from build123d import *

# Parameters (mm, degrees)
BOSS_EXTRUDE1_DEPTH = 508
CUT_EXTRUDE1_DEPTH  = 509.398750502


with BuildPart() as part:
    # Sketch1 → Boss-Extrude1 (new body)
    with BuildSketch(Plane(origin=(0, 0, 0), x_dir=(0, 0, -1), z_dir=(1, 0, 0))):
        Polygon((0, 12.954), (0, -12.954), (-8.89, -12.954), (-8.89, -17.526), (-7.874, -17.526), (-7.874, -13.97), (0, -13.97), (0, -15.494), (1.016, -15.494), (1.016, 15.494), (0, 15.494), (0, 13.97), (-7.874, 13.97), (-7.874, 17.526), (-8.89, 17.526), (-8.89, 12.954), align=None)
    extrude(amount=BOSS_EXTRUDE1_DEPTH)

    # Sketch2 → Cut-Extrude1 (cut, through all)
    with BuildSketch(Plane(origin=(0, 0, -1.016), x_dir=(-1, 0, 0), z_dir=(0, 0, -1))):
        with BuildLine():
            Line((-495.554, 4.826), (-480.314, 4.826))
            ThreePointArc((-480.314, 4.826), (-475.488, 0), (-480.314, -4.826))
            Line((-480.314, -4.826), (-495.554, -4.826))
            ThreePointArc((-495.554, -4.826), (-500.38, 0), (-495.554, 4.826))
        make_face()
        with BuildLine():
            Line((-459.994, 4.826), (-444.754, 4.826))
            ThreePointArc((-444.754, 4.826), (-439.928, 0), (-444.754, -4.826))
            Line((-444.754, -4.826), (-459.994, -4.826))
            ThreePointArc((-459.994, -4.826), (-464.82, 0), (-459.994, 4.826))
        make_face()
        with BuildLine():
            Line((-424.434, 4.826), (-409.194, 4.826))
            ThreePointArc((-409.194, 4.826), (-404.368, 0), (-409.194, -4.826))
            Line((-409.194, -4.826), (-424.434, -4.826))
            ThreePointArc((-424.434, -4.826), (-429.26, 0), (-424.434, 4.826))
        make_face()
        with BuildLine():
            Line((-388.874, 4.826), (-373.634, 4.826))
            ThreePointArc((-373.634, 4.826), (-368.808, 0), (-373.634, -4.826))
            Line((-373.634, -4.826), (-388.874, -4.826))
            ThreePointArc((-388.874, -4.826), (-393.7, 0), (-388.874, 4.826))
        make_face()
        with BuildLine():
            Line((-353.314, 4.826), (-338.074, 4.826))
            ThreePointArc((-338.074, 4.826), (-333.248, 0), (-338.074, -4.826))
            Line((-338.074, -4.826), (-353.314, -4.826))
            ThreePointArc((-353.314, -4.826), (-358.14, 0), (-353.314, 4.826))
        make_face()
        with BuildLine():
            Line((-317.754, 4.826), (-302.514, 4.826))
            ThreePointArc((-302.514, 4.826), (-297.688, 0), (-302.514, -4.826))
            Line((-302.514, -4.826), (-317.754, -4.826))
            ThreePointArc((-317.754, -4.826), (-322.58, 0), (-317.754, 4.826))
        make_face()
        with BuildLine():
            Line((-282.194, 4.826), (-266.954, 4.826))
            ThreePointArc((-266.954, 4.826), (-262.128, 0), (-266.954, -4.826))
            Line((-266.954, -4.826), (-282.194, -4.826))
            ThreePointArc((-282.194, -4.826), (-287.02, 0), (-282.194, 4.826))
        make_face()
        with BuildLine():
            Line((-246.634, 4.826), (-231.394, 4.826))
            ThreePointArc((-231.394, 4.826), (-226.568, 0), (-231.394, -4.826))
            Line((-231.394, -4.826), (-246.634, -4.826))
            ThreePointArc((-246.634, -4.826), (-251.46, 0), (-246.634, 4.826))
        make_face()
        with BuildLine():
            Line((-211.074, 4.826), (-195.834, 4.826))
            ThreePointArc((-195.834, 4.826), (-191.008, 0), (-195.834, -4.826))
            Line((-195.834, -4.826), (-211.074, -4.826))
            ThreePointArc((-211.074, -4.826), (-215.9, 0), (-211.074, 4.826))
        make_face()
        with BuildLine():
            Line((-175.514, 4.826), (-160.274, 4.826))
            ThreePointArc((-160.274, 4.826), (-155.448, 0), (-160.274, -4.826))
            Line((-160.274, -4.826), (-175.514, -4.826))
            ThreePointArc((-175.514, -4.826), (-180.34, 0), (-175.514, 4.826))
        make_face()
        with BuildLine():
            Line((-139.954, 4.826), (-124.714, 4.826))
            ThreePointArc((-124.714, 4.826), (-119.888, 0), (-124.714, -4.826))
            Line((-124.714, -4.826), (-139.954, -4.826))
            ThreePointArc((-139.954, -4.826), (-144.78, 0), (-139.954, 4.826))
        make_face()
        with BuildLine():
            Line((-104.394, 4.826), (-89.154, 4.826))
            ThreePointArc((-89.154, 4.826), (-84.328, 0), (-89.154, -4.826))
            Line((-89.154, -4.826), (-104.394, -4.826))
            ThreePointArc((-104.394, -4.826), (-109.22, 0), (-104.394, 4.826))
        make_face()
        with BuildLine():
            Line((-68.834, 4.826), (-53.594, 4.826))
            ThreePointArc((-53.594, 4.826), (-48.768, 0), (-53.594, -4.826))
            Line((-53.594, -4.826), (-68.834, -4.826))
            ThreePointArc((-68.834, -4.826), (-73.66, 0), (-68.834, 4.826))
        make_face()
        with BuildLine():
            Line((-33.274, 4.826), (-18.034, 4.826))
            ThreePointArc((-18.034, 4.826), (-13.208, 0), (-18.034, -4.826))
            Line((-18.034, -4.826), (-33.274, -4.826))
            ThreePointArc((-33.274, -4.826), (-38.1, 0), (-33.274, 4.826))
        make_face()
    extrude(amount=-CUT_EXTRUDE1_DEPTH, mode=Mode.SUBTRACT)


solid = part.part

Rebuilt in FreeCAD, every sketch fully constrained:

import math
import FreeCAD as App
import Part
import Sketcher

V = App.Vector
Q = App.Units.Quantity

doc = App.newDocument("Part")
body = doc.addObject("PartDesign::Body", "Body")

sketch1 = doc.addObject("Sketcher::SketchObject", "Sketch")
body.addObject(sketch1)
sketch1.AttachmentSupport = (doc.YZ_Plane, [""])
sketch1.MapMode = "FlatFace"
sketch1.addGeometry([
    Part.LineSegment(V(13, 0, 0), V(-13, 0, 0)),
    Part.LineSegment(V(-13, 0, 0), V(-13, 8.9, 0)),
    Part.LineSegment(V(-13, 8.9, 0), V(-17.5, 8.9, 0)),
    Part.LineSegment(V(-17.5, 8.9, 0), V(-17.5, 7.9, 0)),
    Part.LineSegment(V(-17.5, 7.9, 0), V(-14, 7.9, 0)),
    Part.LineSegment(V(-14, 7.9, 0), V(-14, 0, 0)),
    Part.LineSegment(V(-14, 0, 0), V(-15.5, 0, 0)),
    Part.LineSegment(V(-15.5, 0, 0), V(-15.5, -1, 0)),
    Part.LineSegment(V(-15.5, -1, 0), V(15.5, -1, 0)),
    Part.LineSegment(V(15.5, -1, 0), V(15.5, 0, 0)),
    Part.LineSegment(V(15.5, 0, 0), V(14, 0, 0)),
    Part.LineSegment(V(14, 0, 0), V(14, 7.9, 0)),
    Part.LineSegment(V(14, 7.9, 0), V(17.5, 7.9, 0)),
    Part.LineSegment(V(17.5, 7.9, 0), V(17.5, 8.9, 0)),
    Part.LineSegment(V(17.5, 8.9, 0), V(13, 8.9, 0)),
    Part.LineSegment(V(13, 8.9, 0), V(13, 0, 0)),
], False)
sketch1.addConstraint([
    Sketcher.Constraint("Coincident", 0, 2, 1, 1),
    Sketcher.Constraint("Coincident", 1, 2, 2, 1),
    Sketcher.Constraint("Coincident", 2, 2, 3, 1),
    Sketcher.Constraint("Coincident", 3, 2, 4, 1),
    Sketcher.Constraint("Coincident", 4, 2, 5, 1),
    Sketcher.Constraint("Coincident", 5, 2, 6, 1),
    Sketcher.Constraint("Coincident", 6, 2, 7, 1),
    Sketcher.Constraint("Coincident", 7, 2, 8, 1),
    Sketcher.Constraint("Coincident", 8, 2, 9, 1),
    Sketcher.Constraint("Coincident", 9, 2, 10, 1),
    Sketcher.Constraint("Coincident", 10, 2, 11, 1),
    Sketcher.Constraint("Coincident", 11, 2, 12, 1),
    Sketcher.Constraint("Coincident", 12, 2, 13, 1),
    Sketcher.Constraint("Coincident", 13, 2, 14, 1),
    Sketcher.Constraint("Coincident", 14, 2, 15, 1),
    Sketcher.Constraint("Coincident", 15, 2, 0, 1),
    Sketcher.Constraint("Horizontal", 0),
    Sketcher.Constraint("Vertical", 1),
    Sketcher.Constraint("Horizontal", 2),
    Sketcher.Constraint("Vertical", 3),
    Sketcher.Constraint("Horizontal", 4),
    Sketcher.Constraint("Vertical", 5),
    Sketcher.Constraint("Horizontal", 6),
    Sketcher.Constraint("Vertical", 7),
    Sketcher.Constraint("Horizontal", 8),
    Sketcher.Constraint("Vertical", 9),
    Sketcher.Constraint("Horizontal", 10),
    Sketcher.Constraint("Vertical", 11),
    Sketcher.Constraint("Horizontal", 12),
    Sketcher.Constraint("Vertical", 13),
    Sketcher.Constraint("Horizontal", 14),
    Sketcher.Constraint("Vertical", 15),
    Sketcher.Constraint("Symmetric", 6, 2, 9, 2, -1, 1),
    Sketcher.Constraint("Symmetric", 0, 2, 15, 2, -1, 1),
    Sketcher.Constraint("Symmetric", 5, 2, 10, 2, -2),
    Sketcher.Constraint("Symmetric", 3, 2, 12, 2, -2),
    Sketcher.Constraint("Horizontal", 2, 2, 13, 2),
    Sketcher.Constraint("Equal", 3, 7),
    Sketcher.Constraint("DistanceX", 0, 2, 0, 1, Q("1.02 in")),
    Sketcher.Constraint("DistanceX", 2, 2, 2, 1, Q("0.18 in")),
    Sketcher.Constraint("DistanceX", 4, 1, 4, 2, Q("0.14 in")),
    Sketcher.Constraint("DistanceX", 6, 2, 6, 1, Q("0.06 in")),
    Sketcher.Constraint("DistanceY", 1, 1, 1, 2, Q("0.35 in")),
    Sketcher.Constraint("DistanceY", 3, 2, 3, 1, Q("0.04 in")),
])
pad1 = doc.addObject("PartDesign::Pad", "Pad")
body.addObject(pad1)
pad1.Profile = sketch1
pad1.Length = Q("20 in")

sketch2 = doc.addObject("Sketcher::SketchObject", "Sketch001")
body.addObject(sketch2)
sketch2.AttachmentSupport = (doc.XY_Plane, [""])
sketch2.MapMode = "FlatFace"
sketch2.AttachmentOffset = App.Placement(V(0, 0, -0.04 * 25.4), App.Rotation())
sketch2.addGeometry([
    Part.LineSegment(V(480.3, 4.8, 0), V(495.6, 4.8, 0)),
    Part.ArcOfCircle(Part.Circle(V(495.6, 0, 0), V(0, 0, 1), 4.8), math.radians(-90), math.radians(90)),
    Part.LineSegment(V(495.6, -4.8, 0), V(480.3, -4.8, 0)),
    Part.ArcOfCircle(Part.Circle(V(480.3, 0, 0), V(0, 0, 1), 4.8), math.radians(90), math.radians(270)),
    Part.LineSegment(V(444.8, 4.8, 0), V(460, 4.8, 0)),
    Part.ArcOfCircle(Part.Circle(V(460, 0, 0), V(0, 0, 1), 4.8), math.radians(-90), math.radians(90)),
    Part.LineSegment(V(460, -4.8, 0), V(444.8, -4.8, 0)),
    Part.ArcOfCircle(Part.Circle(V(444.8, 0, 0), V(0, 0, 1), 4.8), math.radians(90), math.radians(270)),
    Part.LineSegment(V(409.2, 4.8, 0), V(424.4, 4.8, 0)),
    Part.ArcOfCircle(Part.Circle(V(424.4, 0, 0), V(0, 0, 1), 4.8), math.radians(-90), math.radians(90)),
    Part.LineSegment(V(424.4, -4.8, 0), V(409.2, -4.8, 0)),
    Part.ArcOfCircle(Part.Circle(V(409.2, 0, 0), V(0, 0, 1), 4.8), math.radians(90), math.radians(270)),
    Part.LineSegment(V(373.6, 4.8, 0), V(388.9, 4.8, 0)),
    Part.ArcOfCircle(Part.Circle(V(388.9, 0, 0), V(0, 0, 1), 4.8), math.radians(-90), math.radians(90)),
    Part.LineSegment(V(388.9, -4.8, 0), V(373.6, -4.8, 0)),
    Part.ArcOfCircle(Part.Circle(V(373.6, 0, 0), V(0, 0, 1), 4.8), math.radians(90), math.radians(270)),
    Part.LineSegment(V(338.1, 4.8, 0), V(353.3, 4.8, 0)),
    Part.ArcOfCircle(Part.Circle(V(353.3, 0, 0), V(0, 0, 1), 4.8), math.radians(-90), math.radians(90)),
    Part.LineSegment(V(353.3, -4.8, 0), V(338.1, -4.8, 0)),
    Part.ArcOfCircle(Part.Circle(V(338.1, 0, 0), V(0, 0, 1), 4.8), math.radians(90), math.radians(270)),
    Part.LineSegment(V(302.5, 4.8, 0), V(317.8, 4.8, 0)),
    Part.ArcOfCircle(Part.Circle(V(317.8, 0, 0), V(0, 0, 1), 4.8), math.radians(-90), math.radians(90)),
    Part.LineSegment(V(317.8, -4.8, 0), V(302.5, -4.8, 0)),
    Part.ArcOfCircle(Part.Circle(V(302.5, 0, 0), V(0, 0, 1), 4.8), math.radians(90), math.radians(270)),
    Part.LineSegment(V(267, 4.8, 0), V(282.2, 4.8, 0)),
    Part.ArcOfCircle(Part.Circle(V(282.2, 0, 0), V(0, 0, 1), 4.8), math.radians(-90), math.radians(90)),
    Part.LineSegment(V(282.2, -4.8, 0), V(267, -4.8, 0)),
    Part.ArcOfCircle(Part.Circle(V(267, 0, 0), V(0, 0, 1), 4.8), math.radians(90), math.radians(270)),
    Part.LineSegment(V(231.4, 4.8, 0), V(246.6, 4.8, 0)),
    Part.ArcOfCircle(Part.Circle(V(246.6, 0, 0), V(0, 0, 1), 4.8), math.radians(-90), math.radians(90)),
    Part.LineSegment(V(246.6, -4.8, 0), V(231.4, -4.8, 0)),
    Part.ArcOfCircle(Part.Circle(V(231.4, 0, 0), V(0, 0, 1), 4.8), math.radians(90), math.radians(270)),
    Part.LineSegment(V(195.8, 4.8, 0), V(211.1, 4.8, 0)),
    Part.ArcOfCircle(Part.Circle(V(211.1, 0, 0), V(0, 0, 1), 4.8), math.radians(-90), math.radians(90)),
    Part.LineSegment(V(211.1, -4.8, 0), V(195.8, -4.8, 0)),
    Part.ArcOfCircle(Part.Circle(V(195.8, 0, 0), V(0, 0, 1), 4.8), math.radians(90), math.radians(270)),
    Part.LineSegment(V(160.3, 4.8, 0), V(175.5, 4.8, 0)),
    Part.ArcOfCircle(Part.Circle(V(175.5, 0, 0), V(0, 0, 1), 4.8), math.radians(-90), math.radians(90)),
    Part.LineSegment(V(175.5, -4.8, 0), V(160.3, -4.8, 0)),
    Part.ArcOfCircle(Part.Circle(V(160.3, 0, 0), V(0, 0, 1), 4.8), math.radians(90), math.radians(270)),
    Part.LineSegment(V(124.7, 4.8, 0), V(140, 4.8, 0)),
    Part.ArcOfCircle(Part.Circle(V(140, 0, 0), V(0, 0, 1), 4.8), math.radians(-90), math.radians(90)),
    Part.LineSegment(V(140, -4.8, 0), V(124.7, -4.8, 0)),
    Part.ArcOfCircle(Part.Circle(V(124.7, 0, 0), V(0, 0, 1), 4.8), math.radians(90), math.radians(270)),
    Part.LineSegment(V(89.2, 4.8, 0), V(104.4, 4.8, 0)),
    Part.ArcOfCircle(Part.Circle(V(104.4, 0, 0), V(0, 0, 1), 4.8), math.radians(-90), math.radians(90)),
    Part.LineSegment(V(104.4, -4.8, 0), V(89.2, -4.8, 0)),
    Part.ArcOfCircle(Part.Circle(V(89.2, 0, 0), V(0, 0, 1), 4.8), math.radians(90), math.radians(270)),
    Part.LineSegment(V(53.6, 4.8, 0), V(68.8, 4.8, 0)),
    Part.ArcOfCircle(Part.Circle(V(68.8, 0, 0), V(0, 0, 1), 4.8), math.radians(-90), math.radians(90)),
    Part.LineSegment(V(68.8, -4.8, 0), V(53.6, -4.8, 0)),
    Part.ArcOfCircle(Part.Circle(V(53.6, 0, 0), V(0, 0, 1), 4.8), math.radians(90), math.radians(270)),
    Part.LineSegment(V(18, 4.8, 0), V(33.3, 4.8, 0)),
    Part.ArcOfCircle(Part.Circle(V(33.3, 0, 0), V(0, 0, 1), 4.8), math.radians(-90), math.radians(90)),
    Part.LineSegment(V(33.3, -4.8, 0), V(18, -4.8, 0)),
    Part.ArcOfCircle(Part.Circle(V(18, 0, 0), V(0, 0, 1), 4.8), math.radians(90), math.radians(270)),
], False)
sketch2.addConstraint([
    Sketcher.Constraint("Tangent", 0, 2, 1, 2),
    Sketcher.Constraint("Tangent", 1, 1, 2, 1),
    Sketcher.Constraint("Tangent", 2, 2, 3, 2),
    Sketcher.Constraint("Tangent", 3, 1, 0, 1),
    Sketcher.Constraint("Tangent", 4, 2, 5, 2),
    Sketcher.Constraint("Tangent", 5, 1, 6, 1),
    Sketcher.Constraint("Tangent", 6, 2, 7, 2),
    Sketcher.Constraint("Tangent", 7, 1, 4, 1),
    Sketcher.Constraint("Tangent", 8, 2, 9, 2),
    Sketcher.Constraint("Tangent", 9, 1, 10, 1),
    Sketcher.Constraint("Tangent", 10, 2, 11, 2),
    Sketcher.Constraint("Tangent", 11, 1, 8, 1),
    Sketcher.Constraint("Tangent", 12, 2, 13, 2),
    Sketcher.Constraint("Tangent", 13, 1, 14, 1),
    Sketcher.Constraint("Tangent", 14, 2, 15, 2),
    Sketcher.Constraint("Tangent", 15, 1, 12, 1),
    Sketcher.Constraint("Tangent", 16, 2, 17, 2),
    Sketcher.Constraint("Tangent", 17, 1, 18, 1),
    Sketcher.Constraint("Tangent", 18, 2, 19, 2),
    Sketcher.Constraint("Tangent", 19, 1, 16, 1),
    Sketcher.Constraint("Tangent", 20, 2, 21, 2),
    Sketcher.Constraint("Tangent", 21, 1, 22, 1),
    Sketcher.Constraint("Tangent", 22, 2, 23, 2),
    Sketcher.Constraint("Tangent", 23, 1, 20, 1),
    Sketcher.Constraint("Tangent", 24, 2, 25, 2),
    Sketcher.Constraint("Tangent", 25, 1, 26, 1),
    Sketcher.Constraint("Tangent", 26, 2, 27, 2),
    Sketcher.Constraint("Tangent", 27, 1, 24, 1),
    Sketcher.Constraint("Tangent", 28, 2, 29, 2),
    Sketcher.Constraint("Tangent", 29, 1, 30, 1),
    Sketcher.Constraint("Tangent", 30, 2, 31, 2),
    Sketcher.Constraint("Tangent", 31, 1, 28, 1),
    Sketcher.Constraint("Tangent", 32, 2, 33, 2),
    Sketcher.Constraint("Tangent", 33, 1, 34, 1),
    Sketcher.Constraint("Tangent", 34, 2, 35, 2),
    Sketcher.Constraint("Tangent", 35, 1, 32, 1),
    Sketcher.Constraint("Tangent", 36, 2, 37, 2),
    Sketcher.Constraint("Tangent", 37, 1, 38, 1),
    Sketcher.Constraint("Tangent", 38, 2, 39, 2),
    Sketcher.Constraint("Tangent", 39, 1, 36, 1),
    Sketcher.Constraint("Tangent", 40, 2, 41, 2),
    Sketcher.Constraint("Tangent", 41, 1, 42, 1),
    Sketcher.Constraint("Tangent", 42, 2, 43, 2),
    Sketcher.Constraint("Tangent", 43, 1, 40, 1),
    Sketcher.Constraint("Tangent", 44, 2, 45, 2),
    Sketcher.Constraint("Tangent", 45, 1, 46, 1),
    Sketcher.Constraint("Tangent", 46, 2, 47, 2),
    Sketcher.Constraint("Tangent", 47, 1, 44, 1),
    Sketcher.Constraint("Tangent", 48, 2, 49, 2),
    Sketcher.Constraint("Tangent", 49, 1, 50, 1),
    Sketcher.Constraint("Tangent", 50, 2, 51, 2),
    Sketcher.Constraint("Tangent", 51, 1, 48, 1),
    Sketcher.Constraint("Tangent", 52, 2, 53, 2),
    Sketcher.Constraint("Tangent", 53, 1, 54, 1),
    Sketcher.Constraint("Tangent", 54, 2, 55, 2),
    Sketcher.Constraint("Tangent", 55, 1, 52, 1),
    Sketcher.Constraint("Horizontal", 0),
    Sketcher.Constraint("Horizontal", 2),
    Sketcher.Constraint("Horizontal", 4),
    Sketcher.Constraint("Horizontal", 6),
    Sketcher.Constraint("Horizontal", 8),
    Sketcher.Constraint("Horizontal", 10),
    Sketcher.Constraint("Horizontal", 12),
    Sketcher.Constraint("Horizontal", 14),
    Sketcher.Constraint("Horizontal", 16),
    Sketcher.Constraint("Horizontal", 18),
    Sketcher.Constraint("Horizontal", 20),
    Sketcher.Constraint("Horizontal", 22),
    Sketcher.Constraint("Horizontal", 24),
    Sketcher.Constraint("Horizontal", 26),
    Sketcher.Constraint("Horizontal", 28),
    Sketcher.Constraint("Horizontal", 30),
    Sketcher.Constraint("Horizontal", 32),
    Sketcher.Constraint("Horizontal", 34),
    Sketcher.Constraint("Horizontal", 36),
    Sketcher.Constraint("Horizontal", 38),
    Sketcher.Constraint("Horizontal", 40),
    Sketcher.Constraint("Horizontal", 42),
    Sketcher.Constraint("Horizontal", 44),
    Sketcher.Constraint("Horizontal", 46),
    Sketcher.Constraint("Horizontal", 48),
    Sketcher.Constraint("Horizontal", 50),
    Sketcher.Constraint("Horizontal", 52),
    Sketcher.Constraint("Horizontal", 54),
    Sketcher.Constraint("Equal", 3, 5),
    Sketcher.Constraint("Equal", 7, 9),
    Sketcher.Constraint("Equal", 11, 13),
    Sketcher.Constraint("Equal", 15, 17),
    Sketcher.Constraint("Equal", 19, 21),
    Sketcher.Constraint("Equal", 23, 25),
    Sketcher.Constraint("Equal", 27, 29),
    Sketcher.Constraint("Equal", 31, 33),
    Sketcher.Constraint("Equal", 35, 37),
    Sketcher.Constraint("Equal", 39, 41),
    Sketcher.Constraint("Equal", 43, 45),
    Sketcher.Constraint("Equal", 47, 49),
    Sketcher.Constraint("Equal", 51, 53),
    Sketcher.Constraint("PointOnObject", 1, 3, -1),
    Sketcher.Constraint("PointOnObject", 5, 3, -1),
    Sketcher.Constraint("PointOnObject", 9, 3, -1),
    Sketcher.Constraint("PointOnObject", 13, 3, -1),
    Sketcher.Constraint("PointOnObject", 17, 3, -1),
    Sketcher.Constraint("PointOnObject", 21, 3, -1),
    Sketcher.Constraint("PointOnObject", 25, 3, -1),
    Sketcher.Constraint("PointOnObject", 29, 3, -1),
    Sketcher.Constraint("PointOnObject", 33, 3, -1),
    Sketcher.Constraint("PointOnObject", 37, 3, -1),
    Sketcher.Constraint("PointOnObject", 41, 3, -1),
    Sketcher.Constraint("PointOnObject", 45, 3, -1),
    Sketcher.Constraint("PointOnObject", 49, 3, -1),
    Sketcher.Constraint("PointOnObject", 53, 3, -1),
    Sketcher.Constraint("Equal", 2, 4),
    Sketcher.Constraint("Equal", 6, 8),
    Sketcher.Constraint("Equal", 10, 12),
    Sketcher.Constraint("Equal", 14, 16),
    Sketcher.Constraint("Equal", 18, 20),
    Sketcher.Constraint("Equal", 22, 24),
    Sketcher.Constraint("Equal", 26, 28),
    Sketcher.Constraint("Equal", 30, 32),
    Sketcher.Constraint("Equal", 34, 36),
    Sketcher.Constraint("Equal", 38, 40),
    Sketcher.Constraint("Equal", 42, 44),
    Sketcher.Constraint("Equal", 46, 48),
    Sketcher.Constraint("Equal", 50, 52),
    Sketcher.Constraint("Radius", 1, Q("0.19 in")),
    Sketcher.Constraint("DistanceX", 0, 1, 0, 2, Q("0.6 in")),
    Sketcher.Constraint("DistanceX", -1, 1, 1, 3, Q("19.51 in")),
    Sketcher.Constraint("DistanceX", -1, 1, 5, 3, Q("18.11 in")),
    Sketcher.Constraint("DistanceX", -1, 1, 9, 3, Q("16.71 in")),
    Sketcher.Constraint("DistanceX", -1, 1, 13, 3, Q("15.31 in")),
    Sketcher.Constraint("DistanceX", -1, 1, 17, 3, Q("13.91 in")),
    Sketcher.Constraint("DistanceX", -1, 1, 21, 3, Q("12.51 in")),
    Sketcher.Constraint("DistanceX", -1, 1, 25, 3, Q("11.11 in")),
    Sketcher.Constraint("DistanceX", -1, 1, 29, 3, Q("9.71 in")),
    Sketcher.Constraint("DistanceX", -1, 1, 33, 3, Q("8.31 in")),
    Sketcher.Constraint("DistanceX", -1, 1, 37, 3, Q("6.91 in")),
    Sketcher.Constraint("DistanceX", -1, 1, 41, 3, Q("5.51 in")),
    Sketcher.Constraint("DistanceX", -1, 1, 45, 3, Q("4.11 in")),
    Sketcher.Constraint("DistanceX", -1, 1, 49, 3, Q("2.71 in")),
    Sketcher.Constraint("DistanceX", -1, 1, 53, 3, Q("1.31 in")),
])
pocket1 = doc.addObject("PartDesign::Pocket", "Pocket")
body.addObject(pocket1)
pocket1.Profile = sketch2
pocket1.Type = "ThroughAll"
pocket1.Reversed = True

doc.recompute()
